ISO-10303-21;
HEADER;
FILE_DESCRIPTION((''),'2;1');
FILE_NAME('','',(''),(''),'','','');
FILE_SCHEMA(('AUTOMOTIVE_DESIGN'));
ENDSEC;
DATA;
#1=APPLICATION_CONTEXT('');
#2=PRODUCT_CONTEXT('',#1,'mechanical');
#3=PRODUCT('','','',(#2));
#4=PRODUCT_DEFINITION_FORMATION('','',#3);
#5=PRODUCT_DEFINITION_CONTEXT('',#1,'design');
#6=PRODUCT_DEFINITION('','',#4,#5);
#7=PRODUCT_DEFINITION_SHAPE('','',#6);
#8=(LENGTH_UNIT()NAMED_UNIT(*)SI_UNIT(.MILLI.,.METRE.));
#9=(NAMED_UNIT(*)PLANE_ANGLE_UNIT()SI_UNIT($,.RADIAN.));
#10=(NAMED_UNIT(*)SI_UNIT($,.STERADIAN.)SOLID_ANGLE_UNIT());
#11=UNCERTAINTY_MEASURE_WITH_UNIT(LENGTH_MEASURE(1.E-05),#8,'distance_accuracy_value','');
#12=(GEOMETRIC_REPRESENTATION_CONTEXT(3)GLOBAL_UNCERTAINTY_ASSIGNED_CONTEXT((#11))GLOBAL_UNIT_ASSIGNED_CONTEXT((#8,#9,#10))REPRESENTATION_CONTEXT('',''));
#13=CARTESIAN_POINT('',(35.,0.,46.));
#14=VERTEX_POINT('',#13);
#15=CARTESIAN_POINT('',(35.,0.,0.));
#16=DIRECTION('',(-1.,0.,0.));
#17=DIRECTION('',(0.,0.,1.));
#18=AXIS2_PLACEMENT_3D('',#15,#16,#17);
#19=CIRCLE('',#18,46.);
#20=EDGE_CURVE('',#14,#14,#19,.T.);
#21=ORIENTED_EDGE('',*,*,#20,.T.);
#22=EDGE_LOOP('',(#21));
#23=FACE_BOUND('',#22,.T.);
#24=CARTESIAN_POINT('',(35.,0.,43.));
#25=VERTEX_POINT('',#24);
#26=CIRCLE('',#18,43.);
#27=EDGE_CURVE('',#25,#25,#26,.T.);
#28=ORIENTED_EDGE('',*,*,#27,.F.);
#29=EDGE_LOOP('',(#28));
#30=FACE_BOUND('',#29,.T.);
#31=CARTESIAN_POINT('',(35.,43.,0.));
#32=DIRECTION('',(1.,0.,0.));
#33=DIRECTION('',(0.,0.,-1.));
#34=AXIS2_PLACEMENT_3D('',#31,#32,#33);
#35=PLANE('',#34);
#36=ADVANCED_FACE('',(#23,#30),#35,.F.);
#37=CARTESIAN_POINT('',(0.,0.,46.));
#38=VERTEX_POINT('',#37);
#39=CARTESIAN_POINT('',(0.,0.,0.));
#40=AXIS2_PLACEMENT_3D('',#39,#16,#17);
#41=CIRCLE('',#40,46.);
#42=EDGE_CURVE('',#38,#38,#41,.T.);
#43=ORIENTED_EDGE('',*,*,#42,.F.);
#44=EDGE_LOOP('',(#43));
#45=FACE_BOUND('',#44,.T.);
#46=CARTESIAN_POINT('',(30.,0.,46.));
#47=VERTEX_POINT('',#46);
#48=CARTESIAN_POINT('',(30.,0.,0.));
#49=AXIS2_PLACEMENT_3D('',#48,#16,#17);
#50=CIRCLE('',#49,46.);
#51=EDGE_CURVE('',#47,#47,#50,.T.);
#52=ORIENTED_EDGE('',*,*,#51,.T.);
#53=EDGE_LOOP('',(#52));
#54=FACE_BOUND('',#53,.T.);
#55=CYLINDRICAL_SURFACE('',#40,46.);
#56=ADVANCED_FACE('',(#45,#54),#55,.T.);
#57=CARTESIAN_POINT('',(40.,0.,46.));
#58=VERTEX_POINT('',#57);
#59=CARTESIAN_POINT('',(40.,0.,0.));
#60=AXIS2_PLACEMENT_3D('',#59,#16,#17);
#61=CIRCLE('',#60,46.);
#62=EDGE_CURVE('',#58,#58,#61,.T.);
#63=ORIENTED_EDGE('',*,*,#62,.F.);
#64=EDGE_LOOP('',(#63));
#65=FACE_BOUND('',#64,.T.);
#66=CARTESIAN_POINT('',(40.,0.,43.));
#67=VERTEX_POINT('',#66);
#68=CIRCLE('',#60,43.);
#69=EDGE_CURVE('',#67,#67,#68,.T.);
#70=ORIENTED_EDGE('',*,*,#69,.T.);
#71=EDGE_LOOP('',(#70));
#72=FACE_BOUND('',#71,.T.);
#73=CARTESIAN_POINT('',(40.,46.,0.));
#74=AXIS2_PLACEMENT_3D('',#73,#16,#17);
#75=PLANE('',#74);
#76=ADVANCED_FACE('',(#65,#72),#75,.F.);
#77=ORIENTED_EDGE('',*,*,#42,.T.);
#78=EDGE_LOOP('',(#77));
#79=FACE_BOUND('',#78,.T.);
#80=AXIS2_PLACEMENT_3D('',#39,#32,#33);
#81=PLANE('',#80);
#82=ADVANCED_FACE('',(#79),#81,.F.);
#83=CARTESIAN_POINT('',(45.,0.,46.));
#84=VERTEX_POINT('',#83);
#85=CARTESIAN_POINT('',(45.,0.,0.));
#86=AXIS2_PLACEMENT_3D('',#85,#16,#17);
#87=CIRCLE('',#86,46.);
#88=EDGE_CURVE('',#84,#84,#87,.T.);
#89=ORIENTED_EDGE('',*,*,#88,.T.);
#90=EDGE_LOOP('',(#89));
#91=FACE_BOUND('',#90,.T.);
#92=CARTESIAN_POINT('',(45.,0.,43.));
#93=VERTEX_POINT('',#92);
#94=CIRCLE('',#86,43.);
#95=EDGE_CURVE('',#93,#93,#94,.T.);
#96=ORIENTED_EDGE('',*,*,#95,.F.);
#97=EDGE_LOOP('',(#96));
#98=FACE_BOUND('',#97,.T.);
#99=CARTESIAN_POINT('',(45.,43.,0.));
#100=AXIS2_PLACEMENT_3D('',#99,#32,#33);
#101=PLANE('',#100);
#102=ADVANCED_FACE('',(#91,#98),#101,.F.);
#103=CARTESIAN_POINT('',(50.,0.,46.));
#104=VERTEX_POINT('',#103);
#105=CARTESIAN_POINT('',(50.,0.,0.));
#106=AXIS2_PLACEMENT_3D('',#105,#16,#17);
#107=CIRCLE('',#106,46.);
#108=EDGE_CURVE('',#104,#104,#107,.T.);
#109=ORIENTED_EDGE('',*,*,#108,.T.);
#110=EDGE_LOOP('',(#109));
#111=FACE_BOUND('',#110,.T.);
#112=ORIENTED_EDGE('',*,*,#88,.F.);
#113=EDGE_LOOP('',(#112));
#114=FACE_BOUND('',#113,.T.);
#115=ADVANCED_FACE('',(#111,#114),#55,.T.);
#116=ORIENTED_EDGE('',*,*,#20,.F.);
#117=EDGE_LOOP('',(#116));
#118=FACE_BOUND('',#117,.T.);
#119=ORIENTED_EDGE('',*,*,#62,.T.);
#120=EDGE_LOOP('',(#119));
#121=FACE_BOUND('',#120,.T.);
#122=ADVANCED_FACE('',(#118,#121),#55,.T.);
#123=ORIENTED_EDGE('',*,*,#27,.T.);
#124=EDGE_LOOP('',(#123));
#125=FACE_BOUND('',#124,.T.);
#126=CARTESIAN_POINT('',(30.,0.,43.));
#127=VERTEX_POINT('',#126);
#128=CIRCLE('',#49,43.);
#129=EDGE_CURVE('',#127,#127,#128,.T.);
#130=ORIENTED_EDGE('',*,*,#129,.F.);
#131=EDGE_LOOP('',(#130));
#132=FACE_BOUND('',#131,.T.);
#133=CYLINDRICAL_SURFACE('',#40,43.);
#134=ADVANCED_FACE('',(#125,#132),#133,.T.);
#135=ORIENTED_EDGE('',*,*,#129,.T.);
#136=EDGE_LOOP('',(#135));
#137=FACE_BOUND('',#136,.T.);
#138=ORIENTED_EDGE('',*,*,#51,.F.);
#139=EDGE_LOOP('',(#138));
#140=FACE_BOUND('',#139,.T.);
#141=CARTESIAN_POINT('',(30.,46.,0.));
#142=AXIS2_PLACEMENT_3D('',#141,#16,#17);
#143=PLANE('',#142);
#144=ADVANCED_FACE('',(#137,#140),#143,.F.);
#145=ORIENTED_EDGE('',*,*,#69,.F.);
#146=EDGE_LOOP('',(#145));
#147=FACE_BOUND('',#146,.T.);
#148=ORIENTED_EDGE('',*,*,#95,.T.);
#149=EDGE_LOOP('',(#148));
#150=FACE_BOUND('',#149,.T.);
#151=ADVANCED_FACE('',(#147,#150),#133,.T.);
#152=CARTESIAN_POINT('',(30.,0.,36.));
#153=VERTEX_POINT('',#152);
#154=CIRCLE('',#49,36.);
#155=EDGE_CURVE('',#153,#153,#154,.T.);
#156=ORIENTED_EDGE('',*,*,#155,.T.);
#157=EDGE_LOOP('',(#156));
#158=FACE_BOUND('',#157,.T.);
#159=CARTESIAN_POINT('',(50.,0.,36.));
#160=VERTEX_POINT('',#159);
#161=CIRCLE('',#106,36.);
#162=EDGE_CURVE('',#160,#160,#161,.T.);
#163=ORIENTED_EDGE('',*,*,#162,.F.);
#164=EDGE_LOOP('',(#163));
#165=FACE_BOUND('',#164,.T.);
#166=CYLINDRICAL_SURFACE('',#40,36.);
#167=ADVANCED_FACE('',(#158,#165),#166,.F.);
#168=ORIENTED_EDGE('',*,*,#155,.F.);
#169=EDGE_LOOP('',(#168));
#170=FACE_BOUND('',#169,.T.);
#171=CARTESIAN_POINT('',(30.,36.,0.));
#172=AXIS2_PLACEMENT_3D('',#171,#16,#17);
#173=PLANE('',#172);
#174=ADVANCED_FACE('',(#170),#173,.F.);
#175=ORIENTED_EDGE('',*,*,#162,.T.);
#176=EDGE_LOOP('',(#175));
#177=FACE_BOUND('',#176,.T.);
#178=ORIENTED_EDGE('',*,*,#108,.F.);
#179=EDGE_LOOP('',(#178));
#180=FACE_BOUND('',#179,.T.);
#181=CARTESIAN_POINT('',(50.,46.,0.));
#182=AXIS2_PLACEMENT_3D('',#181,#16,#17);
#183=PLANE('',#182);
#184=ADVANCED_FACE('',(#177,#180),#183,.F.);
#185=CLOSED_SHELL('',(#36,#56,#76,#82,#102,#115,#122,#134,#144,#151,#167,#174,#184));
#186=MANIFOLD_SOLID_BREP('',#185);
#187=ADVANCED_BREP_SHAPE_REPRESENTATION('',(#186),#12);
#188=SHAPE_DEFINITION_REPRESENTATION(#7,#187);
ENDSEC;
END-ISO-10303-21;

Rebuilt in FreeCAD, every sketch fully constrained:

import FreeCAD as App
import Part
import Sketcher
Q = App.Units.Quantity


def add_polygon(sketch, points):
    """Adds a closed chain of lines whose ends are joined by coincident constraints."""
    first, n = sketch.GeometryCount, len(points)
    for a, b in zip(points, points[1:] + points[:1]):
        sketch.addGeometry(Part.LineSegment(App.Vector(*a, 0), App.Vector(*b, 0)), False)
    for i in range(n):
        sketch.addConstraint(Sketcher.Constraint("Coincident", first + i, 2, first + (i + 1) % n, 1))

doc = App.newDocument("Part")
body = doc.addObject("PartDesign::Body", "Body")

sketch1 = body.newObject("Sketcher::SketchObject", "Sketch")
sketch1.AttachmentSupport = (doc.getObject("XY_Plane"), [""])
sketch1.MapMode = "FlatFace"
add_polygon(sketch1, [(0, 46), (0, 0), (30, 0), (30, 36), (50, 36), (50, 46), (45, 46), (45, 43), (40, 43), (40, 46), (35, 46), (35, 43), (30, 43), (30, 46)])
sketch1.addConstraint(Sketcher.Constraint("Vertical", 0))
sketch1.addConstraint(Sketcher.Constraint("Horizontal", 1))
sketch1.addConstraint(Sketcher.Constraint("Vertical", 2))
sketch1.addConstraint(Sketcher.Constraint("Horizontal", 3))
sketch1.addConstraint(Sketcher.Constraint("Vertical", 4))
sketch1.addConstraint(Sketcher.Constraint("Horizontal", 5))
sketch1.addConstraint(Sketcher.Constraint("Vertical", 6))
sketch1.addConstraint(Sketcher.Constraint("Horizontal", 7))
sketch1.addConstraint(Sketcher.Constraint("Vertical", 8))
sketch1.addConstraint(Sketcher.Constraint("Horizontal", 9))
sketch1.addConstraint(Sketcher.Constraint("Vertical", 10))
sketch1.addConstraint(Sketcher.Constraint("Horizontal", 11))
sketch1.addConstraint(Sketcher.Constraint("Vertical", 12))
sketch1.addConstraint(Sketcher.Constraint("Horizontal", 13))
sketch1.addConstraint(Sketcher.Constraint("Coincident", 0, 2, -1, 1))
sketch1.addConstraint(Sketcher.Constraint("Horizontal", 5, 2, 8, 2))
sketch1.addConstraint(Sketcher.Constraint("Horizontal", 7, 2, 10, 2))
sketch1.addConstraint(Sketcher.Constraint("Horizontal", 9, 2, 12, 2))
sketch1.addConstraint(Sketcher.Constraint("Vertical", 2, 2, 11, 2))
sketch1.addConstraint(Sketcher.Constraint("Equal", 5, 7))
sketch1.addConstraint(Sketcher.Constraint("Equal", 7, 9))
sketch1.addConstraint(Sketcher.Constraint("Equal", 9, 11))
sketch1.addConstraint(Sketcher.Constraint("DistanceX", 1, 1, 1, 2, Q("30 mm")))
sketch1.addConstraint(Sketcher.Constraint("DistanceX", 3, 1, 3, 2, Q("20 mm")))
sketch1.addConstraint(Sketcher.Constraint("DistanceY", 0, 2, 0, 1, Q("46 mm")))
sketch1.addConstraint(Sketcher.Constraint("DistanceY", 2, 1, 2, 2, Q("36 mm")))
sketch1.addConstraint(Sketcher.Constraint("DistanceY", 6, 2, 6, 1, Q("3 mm")))
revolution = body.newObject("PartDesign::Revolution", "Revolution")
revolution.Profile = sketch1
revolution.ReferenceAxis = (sketch1, ["H_Axis"])
revolution.Angle = 360

doc.recompute()
